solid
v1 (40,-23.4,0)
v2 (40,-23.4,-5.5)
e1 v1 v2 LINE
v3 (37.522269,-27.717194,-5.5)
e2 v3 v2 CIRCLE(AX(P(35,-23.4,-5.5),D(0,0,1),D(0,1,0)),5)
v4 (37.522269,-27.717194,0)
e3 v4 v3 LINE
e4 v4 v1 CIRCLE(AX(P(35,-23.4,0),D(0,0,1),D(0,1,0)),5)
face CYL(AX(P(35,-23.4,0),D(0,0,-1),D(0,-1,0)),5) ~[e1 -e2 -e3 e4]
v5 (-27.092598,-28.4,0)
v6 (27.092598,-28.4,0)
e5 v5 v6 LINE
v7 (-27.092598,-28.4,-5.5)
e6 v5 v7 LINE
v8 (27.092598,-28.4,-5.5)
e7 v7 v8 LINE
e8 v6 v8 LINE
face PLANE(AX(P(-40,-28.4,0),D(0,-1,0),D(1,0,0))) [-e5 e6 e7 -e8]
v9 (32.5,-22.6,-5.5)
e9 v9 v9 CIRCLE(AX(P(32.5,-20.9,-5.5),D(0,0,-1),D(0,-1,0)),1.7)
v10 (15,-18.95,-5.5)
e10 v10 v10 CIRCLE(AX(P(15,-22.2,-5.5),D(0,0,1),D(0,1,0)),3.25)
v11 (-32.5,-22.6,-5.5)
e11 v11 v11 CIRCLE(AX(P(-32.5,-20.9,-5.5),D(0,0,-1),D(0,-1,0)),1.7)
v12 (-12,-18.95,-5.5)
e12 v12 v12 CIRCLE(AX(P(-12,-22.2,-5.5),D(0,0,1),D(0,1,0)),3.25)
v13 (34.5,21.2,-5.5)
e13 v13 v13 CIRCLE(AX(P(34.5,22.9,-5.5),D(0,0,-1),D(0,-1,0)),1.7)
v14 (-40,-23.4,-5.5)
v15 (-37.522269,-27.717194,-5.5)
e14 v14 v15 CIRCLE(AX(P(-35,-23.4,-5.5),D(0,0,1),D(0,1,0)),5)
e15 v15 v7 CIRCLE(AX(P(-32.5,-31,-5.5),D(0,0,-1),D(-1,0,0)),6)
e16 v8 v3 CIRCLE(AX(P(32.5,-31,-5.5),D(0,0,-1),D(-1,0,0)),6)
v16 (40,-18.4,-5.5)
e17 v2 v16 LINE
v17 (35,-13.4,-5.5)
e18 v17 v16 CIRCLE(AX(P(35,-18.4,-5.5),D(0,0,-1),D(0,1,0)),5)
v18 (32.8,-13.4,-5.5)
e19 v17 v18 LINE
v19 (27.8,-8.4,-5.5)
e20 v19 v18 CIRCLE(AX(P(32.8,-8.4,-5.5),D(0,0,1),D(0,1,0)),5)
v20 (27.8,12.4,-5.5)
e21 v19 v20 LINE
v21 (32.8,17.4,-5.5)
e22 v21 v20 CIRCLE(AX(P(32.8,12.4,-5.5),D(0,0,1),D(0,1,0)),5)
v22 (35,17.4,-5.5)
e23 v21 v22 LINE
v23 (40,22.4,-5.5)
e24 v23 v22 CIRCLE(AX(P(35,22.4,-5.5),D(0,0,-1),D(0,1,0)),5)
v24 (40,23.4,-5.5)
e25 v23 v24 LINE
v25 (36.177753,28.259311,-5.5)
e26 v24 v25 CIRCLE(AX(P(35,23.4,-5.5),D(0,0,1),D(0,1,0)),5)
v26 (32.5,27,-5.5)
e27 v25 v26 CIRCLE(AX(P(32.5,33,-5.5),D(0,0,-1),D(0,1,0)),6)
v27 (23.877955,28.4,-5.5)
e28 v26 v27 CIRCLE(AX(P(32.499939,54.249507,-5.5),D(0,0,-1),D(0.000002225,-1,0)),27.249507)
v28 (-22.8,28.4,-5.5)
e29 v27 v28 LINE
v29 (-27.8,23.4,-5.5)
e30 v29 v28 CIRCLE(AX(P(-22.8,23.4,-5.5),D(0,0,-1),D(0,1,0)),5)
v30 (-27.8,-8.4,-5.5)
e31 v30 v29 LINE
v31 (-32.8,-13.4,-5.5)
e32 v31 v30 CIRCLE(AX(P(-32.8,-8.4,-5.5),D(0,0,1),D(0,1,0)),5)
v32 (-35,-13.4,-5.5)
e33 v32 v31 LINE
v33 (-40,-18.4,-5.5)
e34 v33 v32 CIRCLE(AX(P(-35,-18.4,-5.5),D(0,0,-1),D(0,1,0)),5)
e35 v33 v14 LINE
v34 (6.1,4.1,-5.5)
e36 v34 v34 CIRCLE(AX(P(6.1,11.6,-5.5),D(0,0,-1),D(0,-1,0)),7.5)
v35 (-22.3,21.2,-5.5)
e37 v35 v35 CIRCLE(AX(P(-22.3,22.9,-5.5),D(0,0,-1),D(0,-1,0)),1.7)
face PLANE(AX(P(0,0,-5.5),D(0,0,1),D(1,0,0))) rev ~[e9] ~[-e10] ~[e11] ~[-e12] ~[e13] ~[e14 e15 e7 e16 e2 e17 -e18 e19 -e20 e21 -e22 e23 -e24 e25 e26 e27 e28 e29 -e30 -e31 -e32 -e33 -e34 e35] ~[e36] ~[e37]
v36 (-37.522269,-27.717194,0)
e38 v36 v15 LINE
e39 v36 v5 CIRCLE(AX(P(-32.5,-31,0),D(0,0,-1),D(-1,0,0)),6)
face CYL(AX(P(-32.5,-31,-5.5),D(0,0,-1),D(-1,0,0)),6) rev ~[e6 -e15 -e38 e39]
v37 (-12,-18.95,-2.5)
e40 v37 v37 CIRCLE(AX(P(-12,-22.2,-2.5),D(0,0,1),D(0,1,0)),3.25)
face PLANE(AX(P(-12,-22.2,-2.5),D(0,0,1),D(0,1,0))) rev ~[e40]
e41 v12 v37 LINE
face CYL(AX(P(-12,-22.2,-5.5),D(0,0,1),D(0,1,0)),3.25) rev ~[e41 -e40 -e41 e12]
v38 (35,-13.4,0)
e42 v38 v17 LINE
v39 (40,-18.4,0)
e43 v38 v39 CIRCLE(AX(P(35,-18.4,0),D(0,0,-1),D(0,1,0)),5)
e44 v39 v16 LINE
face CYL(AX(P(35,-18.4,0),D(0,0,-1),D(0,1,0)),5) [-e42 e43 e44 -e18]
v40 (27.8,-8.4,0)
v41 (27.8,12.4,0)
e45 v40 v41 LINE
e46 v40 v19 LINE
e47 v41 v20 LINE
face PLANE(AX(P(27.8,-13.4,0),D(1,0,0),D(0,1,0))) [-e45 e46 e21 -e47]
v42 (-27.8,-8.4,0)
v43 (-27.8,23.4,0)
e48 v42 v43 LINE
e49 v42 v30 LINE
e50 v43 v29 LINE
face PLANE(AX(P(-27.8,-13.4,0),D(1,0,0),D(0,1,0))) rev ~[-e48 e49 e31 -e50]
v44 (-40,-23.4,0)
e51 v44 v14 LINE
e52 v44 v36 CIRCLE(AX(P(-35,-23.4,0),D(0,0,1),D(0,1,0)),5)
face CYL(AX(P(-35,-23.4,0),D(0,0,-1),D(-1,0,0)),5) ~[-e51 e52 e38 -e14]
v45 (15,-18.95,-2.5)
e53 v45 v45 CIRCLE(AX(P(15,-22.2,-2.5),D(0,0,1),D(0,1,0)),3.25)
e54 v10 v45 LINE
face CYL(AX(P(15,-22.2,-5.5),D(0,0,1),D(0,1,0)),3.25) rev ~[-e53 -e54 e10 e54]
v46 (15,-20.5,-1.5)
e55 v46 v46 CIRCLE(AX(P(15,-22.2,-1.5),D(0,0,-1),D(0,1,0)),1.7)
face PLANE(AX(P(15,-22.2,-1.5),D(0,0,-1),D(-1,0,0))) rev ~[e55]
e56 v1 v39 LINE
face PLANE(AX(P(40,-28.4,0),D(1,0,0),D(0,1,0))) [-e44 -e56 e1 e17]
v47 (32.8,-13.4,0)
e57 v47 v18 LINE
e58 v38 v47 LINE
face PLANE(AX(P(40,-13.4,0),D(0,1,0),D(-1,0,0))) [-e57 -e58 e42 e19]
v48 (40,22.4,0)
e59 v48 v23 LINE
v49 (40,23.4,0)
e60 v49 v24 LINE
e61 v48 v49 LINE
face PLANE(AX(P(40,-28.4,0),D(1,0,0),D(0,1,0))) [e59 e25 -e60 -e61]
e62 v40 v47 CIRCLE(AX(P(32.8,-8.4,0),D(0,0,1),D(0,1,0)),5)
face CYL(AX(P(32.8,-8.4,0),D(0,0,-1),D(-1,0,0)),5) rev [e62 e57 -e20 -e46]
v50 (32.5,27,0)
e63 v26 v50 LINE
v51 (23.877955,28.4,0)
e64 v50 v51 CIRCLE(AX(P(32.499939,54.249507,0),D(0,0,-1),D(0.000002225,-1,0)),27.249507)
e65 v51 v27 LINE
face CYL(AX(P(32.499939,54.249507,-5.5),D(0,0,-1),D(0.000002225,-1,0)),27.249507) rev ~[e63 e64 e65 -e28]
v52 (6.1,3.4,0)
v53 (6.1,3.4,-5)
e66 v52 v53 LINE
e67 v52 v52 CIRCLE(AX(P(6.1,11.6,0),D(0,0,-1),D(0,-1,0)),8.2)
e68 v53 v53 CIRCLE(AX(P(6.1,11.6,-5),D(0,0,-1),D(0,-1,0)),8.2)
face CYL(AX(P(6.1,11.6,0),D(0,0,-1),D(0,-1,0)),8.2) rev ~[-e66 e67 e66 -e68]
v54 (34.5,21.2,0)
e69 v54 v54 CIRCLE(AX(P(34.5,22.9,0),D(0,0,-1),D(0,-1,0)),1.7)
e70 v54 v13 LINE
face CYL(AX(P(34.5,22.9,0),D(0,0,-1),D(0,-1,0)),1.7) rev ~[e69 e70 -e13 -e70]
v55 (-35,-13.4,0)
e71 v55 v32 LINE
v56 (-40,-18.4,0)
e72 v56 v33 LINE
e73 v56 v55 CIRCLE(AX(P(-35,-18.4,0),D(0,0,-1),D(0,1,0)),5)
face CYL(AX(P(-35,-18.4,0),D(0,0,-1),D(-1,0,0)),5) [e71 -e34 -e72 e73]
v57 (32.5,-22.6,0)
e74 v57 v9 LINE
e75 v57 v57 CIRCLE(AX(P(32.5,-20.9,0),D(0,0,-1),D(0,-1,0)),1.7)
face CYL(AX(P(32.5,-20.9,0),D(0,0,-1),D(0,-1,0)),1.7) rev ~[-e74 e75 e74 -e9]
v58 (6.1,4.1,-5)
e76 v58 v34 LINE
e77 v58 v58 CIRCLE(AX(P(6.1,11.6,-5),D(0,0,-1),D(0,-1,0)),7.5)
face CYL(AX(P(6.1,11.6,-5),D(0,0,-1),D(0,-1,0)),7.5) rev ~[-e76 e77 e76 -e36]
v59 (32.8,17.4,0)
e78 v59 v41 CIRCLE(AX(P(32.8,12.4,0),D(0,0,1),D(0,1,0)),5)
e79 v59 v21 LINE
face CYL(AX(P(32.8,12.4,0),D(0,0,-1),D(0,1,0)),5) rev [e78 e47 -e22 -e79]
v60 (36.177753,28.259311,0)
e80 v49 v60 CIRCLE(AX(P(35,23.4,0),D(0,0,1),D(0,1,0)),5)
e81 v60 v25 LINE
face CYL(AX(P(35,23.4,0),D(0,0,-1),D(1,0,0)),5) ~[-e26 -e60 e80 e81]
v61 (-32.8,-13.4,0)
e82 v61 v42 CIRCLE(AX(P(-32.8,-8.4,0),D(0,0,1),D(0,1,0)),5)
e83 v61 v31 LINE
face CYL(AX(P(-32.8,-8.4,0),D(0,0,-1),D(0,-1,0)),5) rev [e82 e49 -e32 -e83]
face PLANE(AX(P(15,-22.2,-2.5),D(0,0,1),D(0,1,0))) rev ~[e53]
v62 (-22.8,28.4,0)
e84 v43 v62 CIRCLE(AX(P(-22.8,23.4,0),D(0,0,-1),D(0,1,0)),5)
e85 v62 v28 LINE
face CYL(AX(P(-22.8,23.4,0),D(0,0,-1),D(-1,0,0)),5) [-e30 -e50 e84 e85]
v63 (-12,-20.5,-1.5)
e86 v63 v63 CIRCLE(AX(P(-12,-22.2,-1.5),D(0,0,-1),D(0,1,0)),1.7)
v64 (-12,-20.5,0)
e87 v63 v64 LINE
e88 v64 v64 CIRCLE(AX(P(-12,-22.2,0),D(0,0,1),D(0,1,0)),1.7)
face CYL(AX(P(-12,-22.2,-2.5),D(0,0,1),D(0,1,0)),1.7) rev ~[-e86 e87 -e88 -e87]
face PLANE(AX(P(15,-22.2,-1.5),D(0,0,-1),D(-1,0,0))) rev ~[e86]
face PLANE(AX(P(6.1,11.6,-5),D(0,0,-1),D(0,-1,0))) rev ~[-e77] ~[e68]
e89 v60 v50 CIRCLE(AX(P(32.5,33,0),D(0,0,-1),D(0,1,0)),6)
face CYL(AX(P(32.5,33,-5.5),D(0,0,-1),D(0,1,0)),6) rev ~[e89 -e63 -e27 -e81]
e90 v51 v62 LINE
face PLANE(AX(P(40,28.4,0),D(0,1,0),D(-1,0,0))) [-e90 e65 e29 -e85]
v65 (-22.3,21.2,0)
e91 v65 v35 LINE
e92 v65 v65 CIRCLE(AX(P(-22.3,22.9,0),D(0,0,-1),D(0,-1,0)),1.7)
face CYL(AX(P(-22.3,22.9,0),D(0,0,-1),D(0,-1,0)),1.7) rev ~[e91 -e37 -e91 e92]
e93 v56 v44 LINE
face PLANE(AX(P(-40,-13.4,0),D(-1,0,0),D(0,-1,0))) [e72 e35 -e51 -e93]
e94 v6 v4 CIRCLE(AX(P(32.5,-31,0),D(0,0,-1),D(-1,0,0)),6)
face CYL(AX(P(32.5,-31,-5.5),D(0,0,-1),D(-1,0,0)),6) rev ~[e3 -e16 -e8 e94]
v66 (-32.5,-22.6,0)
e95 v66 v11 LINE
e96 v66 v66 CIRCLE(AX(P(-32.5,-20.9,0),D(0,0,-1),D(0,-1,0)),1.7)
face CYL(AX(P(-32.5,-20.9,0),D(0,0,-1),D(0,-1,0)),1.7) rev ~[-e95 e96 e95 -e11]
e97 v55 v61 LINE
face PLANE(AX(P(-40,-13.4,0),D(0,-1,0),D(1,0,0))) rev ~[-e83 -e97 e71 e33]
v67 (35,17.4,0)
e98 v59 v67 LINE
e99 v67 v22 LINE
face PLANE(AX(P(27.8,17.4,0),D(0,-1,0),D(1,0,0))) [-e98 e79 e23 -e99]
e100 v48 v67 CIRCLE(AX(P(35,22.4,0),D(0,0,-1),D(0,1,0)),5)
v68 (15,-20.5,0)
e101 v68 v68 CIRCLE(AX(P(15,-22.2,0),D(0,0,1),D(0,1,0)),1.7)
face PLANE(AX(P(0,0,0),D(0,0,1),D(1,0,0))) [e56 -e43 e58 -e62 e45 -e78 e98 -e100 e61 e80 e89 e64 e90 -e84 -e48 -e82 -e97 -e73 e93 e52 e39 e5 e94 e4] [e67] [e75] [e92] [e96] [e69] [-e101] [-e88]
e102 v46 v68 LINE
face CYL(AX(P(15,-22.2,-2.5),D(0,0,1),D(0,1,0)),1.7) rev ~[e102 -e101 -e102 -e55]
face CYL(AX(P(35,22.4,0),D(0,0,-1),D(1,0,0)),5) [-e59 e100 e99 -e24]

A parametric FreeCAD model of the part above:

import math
import FreeCAD as App
import Part
import Sketcher

V = App.Vector


def edges_at(feature, points):
    """Names of the edges that pass closest to the given points."""
    edges = feature.Shape.Edges
    near = lambda p: min(range(len(edges)), key=lambda i: edges[i].distToShape(Part.Vertex(*p))[0])
    return sorted({f"Edge{near(p) + 1}" for p in points})

doc = App.newDocument("Part")
params = doc.addObject("Spreadsheet::Sheet", "Params")
for row, (alias, value) in enumerate([
    ("sketch1_width", "80 mm"),
    ("sketch1_width2", "12.2 mm"),
    ("sketch1_height", "56.8 mm"),
    ("sketch1_height2", "41.8 mm"),
    ("pad1_length", "5.5 mm"),
    ("sketch2_diameter", "3.4 mm"),
    ("hole_diameter", "3.4 mm"),
    ("fillet_radius", "5 mm"),
    ("sketch3_diameter", "15 mm"),
    ("hole2_diameter", "15 mm"),
    ("hole2_cbore_diameter", "16.4 mm"),
    ("hole2_cbore_depth", "5 mm"),
    ("sketch4_width", "12.2 mm"),
    ("sketch4_height", "30.8 mm"),
    ("pocket1_length", "10 mm"),
    ("fillet2_radius", "5 mm"),
    ("sketch5_diameter", "12 mm"),
    ("sketch5_radius", "15.25 mm"),
    ("pocket2_length", "10 mm"),
    ("sketch6_diameter", "3.4 mm"),
    ("hole3_diameter", "3.4 mm"),
    ("hole3_cbore_diameter", "6.5 mm"),
    ("hole3_cbore_depth", "3 mm"),
    ("sketch7_diameter", "3.4 mm"),
    ("pad2_length", "1 mm"),
    ("fillet3_radius", "5 mm"),
], start=1):
    params.set(f"A{row}", alias)
    params.set(f"B{row}", "=" + value)
    params.setAlias(f"B{row}", alias)

body = doc.addObject("PartDesign::Body", "Body")

sketch1 = doc.addObject("Sketcher::SketchObject", "Sketch")
body.addObject(sketch1)
sketch1.AttachmentSupport = (doc.XY_Plane, [""])
sketch1.MapMode = "FlatFace"
sketch1.addGeometry(Part.LineSegment(V(-40, -13.4, 0), V(-40, -28.4, 0)), False)
sketch1.addGeometry(Part.LineSegment(V(-40, -28.4, 0), V(40, -28.4, 0)), False)
sketch1.addGeometry(Part.LineSegment(V(40, -28.4, 0), V(40, 28.4, 0)), False)
sketch1.addGeometry(Part.LineSegment(V(40, 28.4, 0), V(-27.8, 28.4, 0)), False)
sketch1.addGeometry(Part.LineSegment(V(-27.8, 28.4, 0), V(-27.8, -13.4, 0)), False)
sketch1.addGeometry(Part.LineSegment(V(-27.8, -13.4, 0), V(-40, -13.4, 0)), False)
sketch1.addConstraint(Sketcher.Constraint("Coincident", 0, 2, 1, 1))
sketch1.addConstraint(Sketcher.Constraint("Coincident", 1, 2, 2, 1))
sketch1.addConstraint(Sketcher.Constraint("Coincident", 2, 2, 3, 1))
sketch1.addConstraint(Sketcher.Constraint("Coincident", 3, 2, 4, 1))
sketch1.addConstraint(Sketcher.Constraint("Coincident", 4, 2, 5, 1))
sketch1.addConstraint(Sketcher.Constraint("Coincident", 5, 2, 0, 1))
sketch1.addConstraint(Sketcher.Constraint("Vertical", 0))
sketch1.addConstraint(Sketcher.Constraint("Horizontal", 1))
sketch1.addConstraint(Sketcher.Constraint("Vertical", 2))
sketch1.addConstraint(Sketcher.Constraint("Horizontal", 3))
sketch1.addConstraint(Sketcher.Constraint("Vertical", 4))
sketch1.addConstraint(Sketcher.Constraint("Horizontal", 5))
sketch1.addConstraint(Sketcher.Constraint("Symmetric", 0, 2, 2, 2, -1, 1))
sketch1.addConstraint(Sketcher.Constraint("DistanceX", 1, 1, 1, 2, 80.0))
sketch1.addConstraint(Sketcher.Constraint("DistanceX", 5, 2, 5, 1, 12.2))
sketch1.addConstraint(Sketcher.Constraint("DistanceY", 2, 1, 2, 2, 56.8))
sketch1.addConstraint(Sketcher.Constraint("DistanceY", 4, 2, 4, 1, 41.8))
sketch1.setExpression("Constraints[13]", "Params.sketch1_width")
sketch1.setExpression("Constraints[14]", "Params.sketch1_width2")
sketch1.setExpression("Constraints[15]", "Params.sketch1_height")
sketch1.setExpression("Constraints[16]", "Params.sketch1_height2")
pad1 = doc.addObject("PartDesign::Pad", "Pad")
body.addObject(pad1)
pad1.Profile = sketch1
pad1.setExpression("Length", "Params.pad1_length")
pad1.Reversed = True

sketch2 = doc.addObject("Sketcher::SketchObject", "Sketch001")
body.addObject(sketch2)
sketch2.AttachmentSupport = (doc.XY_Plane, [""])
sketch2.MapMode = "FlatFace"
sketch2.addGeometry(Part.Circle(V(32.5, -20.9, 0), V(0, 0, 1), 1.7), False)
sketch2.addGeometry(Part.Circle(V(-32.5, -20.9, 0), V(0, 0, 1), 1.7), False)
sketch2.addGeometry(Part.Circle(V(34.5, 22.9, 0), V(0, 0, 1), 1.7), False)
sketch2.addGeometry(Part.Circle(V(-22.3, 22.9, 0), V(0, 0, 1), 1.7), False)
sketch2.addConstraint(Sketcher.Constraint("Equal", 0, 1))
sketch2.addConstraint(Sketcher.Constraint("Equal", 1, 2))
sketch2.addConstraint(Sketcher.Constraint("Equal", 2, 3))
sketch2.addConstraint(Sketcher.Constraint("Symmetric", 0, 3, 1, 3, -2))
sketch2.addConstraint(Sketcher.Constraint("Horizontal", 2, 3, 3, 3))
sketch2.addConstraint(Sketcher.Constraint("Diameter", 0, 3.4))
sketch2.addConstraint(Sketcher.Constraint("DistanceX", 1, 3, 0, 3, 65.0))
sketch2.addConstraint(Sketcher.Constraint("DistanceX", 0, 3, 2, 3, 2.0))
sketch2.addConstraint(Sketcher.Constraint("DistanceY", 0, 3, -1, 1, 20.9))
sketch2.addConstraint(Sketcher.Constraint("DistanceY", -1, 1, 2, 3, 22.9))
sketch2.addConstraint(Sketcher.Constraint("DistanceX", 3, 3, -1, 1, 22.3))
sketch2.setExpression("Constraints[5]", "Params.sketch2_diameter")
doc.recompute()
hole = doc.addObject("PartDesign::Hole", "Hole")
body.addObject(hole)
hole.Profile = sketch2
hole.ThreadType = "None"
hole.setExpression("Diameter", "Params.hole_diameter")
hole.DepthType = "ThroughAll"
doc.recompute()

fillet = doc.addObject("PartDesign::Fillet", "Fillet")
body.addObject(fillet)
fillet.Base = (hole, edges_at(hole, [
    (-40, -28.4, -2.75),
    (-40, -13.4, -2.75),
    (-27.8, -13.4, -2.75),
    (-27.8, 28.4, -2.75),
    (40, 28.4, -2.75),
    (40, -28.4, -2.75),
]))
fillet.setExpression("Radius", "Params.fillet_radius")

sketch3 = doc.addObject("Sketcher::SketchObject", "Sketch002")
body.addObject(sketch3)
sketch3.AttachmentSupport = (doc.XY_Plane, [""])
sketch3.MapMode = "FlatFace"
sketch3.addGeometry(Part.Circle(V(6.1, 11.6, 0), V(0, 0, 1), 7.5), False)
sketch3.addConstraint(Sketcher.Constraint("Diameter", 0, 15.0))
sketch3.addConstraint(Sketcher.Constraint("DistanceX", -1, 1, 0, 3, 6.1))
sketch3.addConstraint(Sketcher.Constraint("DistanceY", -1, 1, 0, 3, 11.6))
sketch3.setExpression("Constraints[0]", "Params.sketch3_diameter")
doc.recompute()
hole2 = doc.addObject("PartDesign::Hole", "Hole001")
body.addObject(hole2)
hole2.Profile = sketch3
hole2.ThreadType = "None"
hole2.setExpression("Diameter", "Params.hole2_diameter")
hole2.DepthType = "ThroughAll"
hole2.HoleCutType = "Counterbore"
hole2.setExpression("HoleCutDiameter", "Params.hole2_cbore_diameter")
hole2.setExpression("HoleCutDepth", "Params.hole2_cbore_depth")

sketch4 = doc.addObject("Sketcher::SketchObject", "Sketch003")
body.addObject(sketch4)
sketch4.AttachmentSupport = (doc.XY_Plane, [""])
sketch4.MapMode = "FlatFace"
sketch4.addGeometry(Part.LineSegment(V(40, 17.4, 0), V(27.8, 17.4, 0)), False)
sketch4.addGeometry(Part.LineSegment(V(27.8, 17.4, 0), V(27.8, -13.4, 0)), False)
sketch4.addGeometry(Part.LineSegment(V(27.8, -13.4, 0), V(40, -13.4, 0)), False)
sketch4.addGeometry(Part.LineSegment(V(40, -13.4, 0), V(40, 17.4, 0)), False)
sketch4.addConstraint(Sketcher.Constraint("Coincident", 0, 2, 1, 1))
sketch4.addConstraint(Sketcher.Constraint("Coincident", 1, 2, 2, 1))
sketch4.addConstraint(Sketcher.Constraint("Coincident", 2, 2, 3, 1))
sketch4.addConstraint(Sketcher.Constraint("Coincident", 3, 2, 0, 1))
sketch4.addConstraint(Sketcher.Constraint("Horizontal", 0))
sketch4.addConstraint(Sketcher.Constraint("Vertical", 1))
sketch4.addConstraint(Sketcher.Constraint("Horizontal", 2))
sketch4.addConstraint(Sketcher.Constraint("Vertical", 3))
sketch4.addConstraint(Sketcher.Constraint("DistanceX", 0, 2, 0, 1, 12.2))
sketch4.addConstraint(Sketcher.Constraint("DistanceY", 1, 2, 1, 1, 30.8))
sketch4.addConstraint(Sketcher.Constraint("DistanceX", -1, 1, 2, 2, 40.0))
sketch4.addConstraint(Sketcher.Constraint("DistanceY", -1, 1, 0, 2, 17.4))
sketch4.setExpression("Constraints[8]", "Params.sketch4_width")
sketch4.setExpression("Constraints[9]", "Params.sketch4_height")
pocket1 = doc.addObject("PartDesign::Pocket", "Pocket")
body.addObject(pocket1)
pocket1.Profile = sketch4
pocket1.setExpression("Length", "Params.pocket1_length")
doc.recompute()

fillet2 = doc.addObject("PartDesign::Fillet", "Fillet001")
body.addObject(fillet2)
fillet2.Base = (pocket1, edges_at(pocket1, [(40, 17.4, -2.75), (40, -13.4, -2.75)]))
fillet2.setExpression("Radius", "Params.fillet2_radius")

sketch5 = doc.addObject("Sketcher::SketchObject", "Sketch004")
body.addObject(sketch5)
sketch5.AttachmentSupport = (doc.XY_Plane, [""])
sketch5.MapMode = "FlatFace"
sketch5.AttachmentOffset = App.Placement(V(0, 0, -5.5), App.Rotation())
sketch5.addGeometry(Part.ArcOfCircle(Part.Circle(V(32.5, 33, 0), V(0, 0, 1), 6), math.radians(-90), math.radians(90)), False)
sketch5.addGeometry(Part.ArcOfCircle(Part.Circle(V(32.5, 54.25, 0), V(0, 0, 1), 27.25), math.radians(-118.07245), math.radians(-90)), False)
sketch5.addGeometry(Part.ArcOfCircle(Part.Circle(V(22.5, 35.5, 0), V(0, 0, 1), 5.999971), math.radians(61.927682), math.radians(241.927682)), False)
sketch5.addGeometry(Part.ArcOfCircle(Part.Circle(V(32.5, 54.25, 0), V(0, 0, 1), 15.25), math.radians(-118.072553), math.radians(-90)), False)
sketch5.addGeometry(Part.Circle(V(32.5, -31, 0), V(0, 0, 1), 6), False)
sketch5.addGeometry(Part.Circle(V(-32.5, -31, 0), V(0, 0, 1), 6), False)
sketch5.addConstraint(Sketcher.Constraint("Tangent", 0, 1, 1, 2))
sketch5.addConstraint(Sketcher.Constraint("Tangent", 1, 1, 2, 2))
sketch5.addConstraint(Sketcher.Constraint("Tangent", 2, 1, 3, 1))
sketch5.addConstraint(Sketcher.Constraint("Tangent", 3, 2, 0, 2))
sketch5.addConstraint(Sketcher.Constraint("Coincident", 3, 3, 1, 3))
sketch5.addConstraint(Sketcher.Constraint("Equal", 2, 4))
sketch5.addConstraint(Sketcher.Constraint("Equal", 4, 5))
sketch5.addConstraint(Sketcher.Constraint("Symmetric", 4, 3, 5, 3, -2))
sketch5.addConstraint(Sketcher.Constraint("Vertical", 0, 3, 1, 3))
sketch5.addConstraint(Sketcher.Constraint("Vertical", 3, 3, 4, 3))
sketch5.addConstraint(Sketcher.Constraint("Diameter", 4, 12.0))
sketch5.addConstraint(Sketcher.Constraint("Radius", 3, 15.25))
sketch5.addConstraint(Sketcher.Constraint("DistanceX", 2, 3, 0, 3, 10.0))
sketch5.addConstraint(Sketcher.Constraint("DistanceY", -1, 1, 0, 3, 33.0))
sketch5.addConstraint(Sketcher.Constraint("DistanceY", 4, 3, -1, 1, 31.0))
sketch5.addConstraint(Sketcher.Constraint("DistanceX", 5, 3, 4, 3, 65.0))
sketch5.setExpression("Constraints[10]", "Params.sketch5_diameter")
sketch5.setExpression("Constraints[11]", "Params.sketch5_radius")
pocket2 = doc.addObject("PartDesign::Pocket", "Pocket001")
body.addObject(pocket2)
pocket2.Profile = sketch5
pocket2.setExpression("Length", "Params.pocket2_length")
pocket2.Reversed = True

sketch6 = doc.addObject("Sketcher::SketchObject", "Sketch005")
body.addObject(sketch6)
sketch6.AttachmentSupport = (doc.XY_Plane, [""])
sketch6.MapMode = "FlatFace"
sketch6.AttachmentOffset = App.Placement(V(0, 0, -5.5), App.Rotation())
sketch6.addGeometry(Part.Circle(V(15, -22.2, 0), V(0, 0, 1), 1.7), False)
sketch6.addGeometry(Part.Circle(V(-12, -22.2, 0), V(0, 0, 1), 1.7), False)
sketch6.addConstraint(Sketcher.Constraint("Equal", 0, 1))
sketch6.addConstraint(Sketcher.Constraint("Horizontal", 0, 3, 1, 3))
sketch6.addConstraint(Sketcher.Constraint("Diameter", 0, 3.4))
sketch6.addConstraint(Sketcher.Constraint("DistanceX", -1, 1, 0, 3, 15.0))
sketch6.addConstraint(Sketcher.Constraint("DistanceX", 1, 3, -1, 1, 12.0))
sketch6.addConstraint(Sketcher.Constraint("DistanceY", 0, 3, -1, 1, 22.2))
sketch6.setExpression("Constraints[2]", "Params.sketch6_diameter")
doc.recompute()
hole3 = doc.addObject("PartDesign::Hole", "Hole002")
body.addObject(hole3)
hole3.Profile = sketch6
hole3.ThreadType = "None"
hole3.setExpression("Diameter", "Params.hole3_diameter")
hole3.DepthType = "ThroughAll"
hole3.HoleCutType = "Counterbore"
hole3.setExpression("HoleCutDiameter", "Params.hole3_cbore_diameter")
hole3.setExpression("HoleCutDepth", "Params.hole3_cbore_depth")
hole3.Reversed = True

sketch7 = doc.addObject("Sketcher::SketchObject", "Sketch006")
body.addObject(sketch7)
sketch7.AttachmentSupport = (doc.XY_Plane, [""])
sketch7.MapMode = "FlatFace"
sketch7.AttachmentOffset = App.Placement(V(0, 0, -2.5), App.Rotation())
sketch7.addGeometry(Part.Circle(V(15, -22.2, 0), V(0, 0, 1), 1.7), False)
sketch7.addGeometry(Part.Circle(V(-12, -22.2, 0), V(0, 0, 1), 1.7), False)
sketch7.addConstraint(Sketcher.Constraint("Equal", 0, 1))
sketch7.addConstraint(Sketcher.Constraint("Horizontal", 0, 3, 1, 3))
sketch7.addConstraint(Sketcher.Constraint("Diameter", 0, 3.4))
sketch7.addConstraint(Sketcher.Constraint("DistanceX", -1, 1, 0, 3, 15.0))
sketch7.addConstraint(Sketcher.Constraint("DistanceX", 1, 3, -1, 1, 12.0))
sketch7.addConstraint(Sketcher.Constraint("DistanceY", 0, 3, -1, 1, 22.2))
sketch7.setExpression("Constraints[2]", "Params.sketch7_diameter")
pad2 = doc.addObject("PartDesign::Pad", "Pad001")
body.addObject(pad2)
pad2.Profile = sketch7
pad2.setExpression("Length", "Params.pad2_length")
doc.recompute()

fillet3 = doc.addObject("PartDesign::Fillet", "Fillet002")
body.addObject(fillet3)
fillet3.Base = (pad2, edges_at(pad2, [(27.8, -13.4, -2.75), (27.8, 17.4, -2.75)]))
fillet3.setExpression("Radius", "Params.fillet3_radius")

doc.recompute()
